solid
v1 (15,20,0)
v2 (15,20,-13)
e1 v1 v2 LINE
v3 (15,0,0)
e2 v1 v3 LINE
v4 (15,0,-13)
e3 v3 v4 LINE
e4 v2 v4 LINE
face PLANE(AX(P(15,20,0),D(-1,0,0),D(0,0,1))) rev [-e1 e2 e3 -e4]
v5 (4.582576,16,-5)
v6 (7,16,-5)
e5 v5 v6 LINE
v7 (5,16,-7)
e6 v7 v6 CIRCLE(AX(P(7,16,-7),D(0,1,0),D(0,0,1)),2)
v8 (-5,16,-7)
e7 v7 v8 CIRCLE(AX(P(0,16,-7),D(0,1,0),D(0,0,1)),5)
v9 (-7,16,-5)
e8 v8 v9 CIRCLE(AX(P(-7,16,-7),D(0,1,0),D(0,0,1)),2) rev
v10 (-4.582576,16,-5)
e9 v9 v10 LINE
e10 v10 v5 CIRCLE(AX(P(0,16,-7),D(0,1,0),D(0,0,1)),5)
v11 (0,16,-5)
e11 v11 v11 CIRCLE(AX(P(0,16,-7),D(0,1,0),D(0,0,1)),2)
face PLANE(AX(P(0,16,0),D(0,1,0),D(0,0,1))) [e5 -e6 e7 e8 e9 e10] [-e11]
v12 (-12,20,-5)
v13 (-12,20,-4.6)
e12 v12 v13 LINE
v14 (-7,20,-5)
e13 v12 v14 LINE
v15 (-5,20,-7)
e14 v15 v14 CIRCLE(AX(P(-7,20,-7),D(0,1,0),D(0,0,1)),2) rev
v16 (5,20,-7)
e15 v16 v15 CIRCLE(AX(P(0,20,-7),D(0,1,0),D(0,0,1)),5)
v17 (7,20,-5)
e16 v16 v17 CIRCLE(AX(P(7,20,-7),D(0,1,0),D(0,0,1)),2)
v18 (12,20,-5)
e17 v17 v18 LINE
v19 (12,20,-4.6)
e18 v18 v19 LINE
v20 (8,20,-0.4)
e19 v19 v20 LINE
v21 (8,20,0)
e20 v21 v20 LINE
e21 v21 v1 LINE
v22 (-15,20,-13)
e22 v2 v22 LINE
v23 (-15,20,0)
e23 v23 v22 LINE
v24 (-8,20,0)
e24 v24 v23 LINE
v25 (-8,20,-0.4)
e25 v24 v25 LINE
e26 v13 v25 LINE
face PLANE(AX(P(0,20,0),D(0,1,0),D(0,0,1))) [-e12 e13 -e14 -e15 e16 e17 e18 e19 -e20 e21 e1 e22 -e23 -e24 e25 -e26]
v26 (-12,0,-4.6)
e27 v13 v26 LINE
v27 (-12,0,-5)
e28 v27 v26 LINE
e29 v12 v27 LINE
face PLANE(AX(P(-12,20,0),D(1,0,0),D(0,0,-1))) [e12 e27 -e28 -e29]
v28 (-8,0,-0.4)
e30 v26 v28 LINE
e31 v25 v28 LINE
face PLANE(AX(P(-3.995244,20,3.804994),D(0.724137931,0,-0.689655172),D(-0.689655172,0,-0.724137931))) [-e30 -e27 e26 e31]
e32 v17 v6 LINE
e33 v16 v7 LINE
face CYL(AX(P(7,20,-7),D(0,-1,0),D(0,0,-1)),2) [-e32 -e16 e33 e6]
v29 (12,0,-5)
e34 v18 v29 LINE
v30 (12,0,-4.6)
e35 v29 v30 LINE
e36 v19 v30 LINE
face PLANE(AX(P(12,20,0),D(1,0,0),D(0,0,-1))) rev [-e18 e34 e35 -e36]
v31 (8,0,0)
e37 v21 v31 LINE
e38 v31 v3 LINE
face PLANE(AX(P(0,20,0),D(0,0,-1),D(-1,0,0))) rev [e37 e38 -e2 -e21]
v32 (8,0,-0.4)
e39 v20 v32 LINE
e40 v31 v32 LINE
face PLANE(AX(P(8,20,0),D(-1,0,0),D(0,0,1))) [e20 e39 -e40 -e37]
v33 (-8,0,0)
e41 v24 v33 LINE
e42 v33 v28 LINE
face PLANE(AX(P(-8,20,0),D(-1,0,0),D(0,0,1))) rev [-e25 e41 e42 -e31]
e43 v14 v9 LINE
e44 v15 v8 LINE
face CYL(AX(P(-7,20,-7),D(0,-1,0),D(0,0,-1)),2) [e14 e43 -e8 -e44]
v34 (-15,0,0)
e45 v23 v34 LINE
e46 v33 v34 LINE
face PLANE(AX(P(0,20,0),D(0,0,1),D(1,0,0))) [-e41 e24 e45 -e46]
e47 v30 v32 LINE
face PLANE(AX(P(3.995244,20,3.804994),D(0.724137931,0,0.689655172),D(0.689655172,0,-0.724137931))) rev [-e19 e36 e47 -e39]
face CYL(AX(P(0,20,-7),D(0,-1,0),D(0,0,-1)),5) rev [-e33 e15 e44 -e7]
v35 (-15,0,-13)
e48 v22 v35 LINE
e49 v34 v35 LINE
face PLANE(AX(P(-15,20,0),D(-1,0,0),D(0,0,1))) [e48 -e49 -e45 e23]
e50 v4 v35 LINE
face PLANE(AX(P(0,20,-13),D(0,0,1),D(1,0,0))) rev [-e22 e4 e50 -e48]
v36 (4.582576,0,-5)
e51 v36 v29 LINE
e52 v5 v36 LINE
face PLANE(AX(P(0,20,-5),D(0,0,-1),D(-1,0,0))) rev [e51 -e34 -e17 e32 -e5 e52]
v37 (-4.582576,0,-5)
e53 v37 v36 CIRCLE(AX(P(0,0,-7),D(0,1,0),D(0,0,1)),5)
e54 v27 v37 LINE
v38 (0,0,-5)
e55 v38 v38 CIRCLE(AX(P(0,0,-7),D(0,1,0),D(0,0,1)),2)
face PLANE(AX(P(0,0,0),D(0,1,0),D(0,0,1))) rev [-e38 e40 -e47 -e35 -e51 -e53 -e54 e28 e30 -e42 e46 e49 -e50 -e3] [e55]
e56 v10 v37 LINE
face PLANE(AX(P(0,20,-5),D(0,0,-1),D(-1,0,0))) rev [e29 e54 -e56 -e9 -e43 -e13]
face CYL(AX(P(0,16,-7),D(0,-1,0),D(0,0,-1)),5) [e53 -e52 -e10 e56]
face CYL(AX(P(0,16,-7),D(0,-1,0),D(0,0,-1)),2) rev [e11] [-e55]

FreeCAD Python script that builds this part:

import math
import FreeCAD as App
import Part
import Sketcher

V = App.Vector

doc = App.newDocument("Part")
body = doc.addObject("PartDesign::Body", "Body")

# Sketch on XZ plane
sketch1 = body.newObject("Sketcher::SketchObject", "Sketch")
sketch1.AttachmentSupport = (doc.getObject("XZ_Plane"), [""])
sketch1.MapMode = "FlatFace"
sketch1.addGeometry([
    Part.LineSegment(V(-15, 0, 0), V(-8, 0, 0)),  # 0
    Part.LineSegment(V(-8, 0, 0), V(-8, -0.4, 0)),  # 1
    Part.LineSegment(V(-8, -0.4, 0), V(-12, -4.6, 0)),  # 2
    Part.LineSegment(V(-12, -4.6, 0), V(-12, -5, 0)),  # 3
    Part.LineSegment(V(-12, -5, 0), V(-7, -5, 0)),  # 4
    Part.ArcOfCircle(Part.Circle(V(-7, -7, 0), V(0, 0, 1), 2), math.radians(0), math.radians(90)),  # 5
    Part.ArcOfCircle(Part.Circle(V(0, -7, 0), V(0, 0, 1), 5), math.radians(180), math.radians(360)),  # 6
    Part.ArcOfCircle(Part.Circle(V(7, -7, 0), V(0, 0, 1), 2), math.radians(90), math.radians(180)),  # 7
    Part.LineSegment(V(7, -5, 0), V(12, -5, 0)),  # 8
    Part.LineSegment(V(12, -5, 0), V(12, -4.6, 0)),  # 9
    Part.LineSegment(V(12, -4.6, 0), V(8, -0.4, 0)),  # 10
    Part.LineSegment(V(8, -0.4, 0), V(8, 0, 0)),  # 11
    Part.LineSegment(V(8, 0, 0), V(15, 0, 0)),  # 12
    Part.LineSegment(V(15, 0, 0), V(15, -13, 0)),  # 13
    Part.LineSegment(V(15, -13, 0), V(-15, -13, 0)),  # 14
    Part.LineSegment(V(-15, -13, 0), V(-15, 0, 0)),  # 15
], False)
sketch1.addConstraint([
    Sketcher.Constraint("Coincident", 0, 2, 1, 1),
    Sketcher.Constraint("Coincident", 1, 2, 2, 1),
    Sketcher.Constraint("Coincident", 2, 2, 3, 1),
    Sketcher.Constraint("Coincident", 3, 2, 4, 1),
    Sketcher.Constraint("Tangent", 4, 2, 5, 2),
    Sketcher.Constraint("Tangent", 5, 1, 6, 1),
    Sketcher.Constraint("Tangent", 6, 2, 7, 2),
    Sketcher.Constraint("Tangent", 7, 1, 8, 1),
    Sketcher.Constraint("Coincident", 8, 2, 9, 1),
    Sketcher.Constraint("Coincident", 9, 2, 10, 1),
    Sketcher.Constraint("Coincident", 10, 2, 11, 1),
    Sketcher.Constraint("Coincident", 11, 2, 12, 1),
    Sketcher.Constraint("Coincident", 12, 2, 13, 1),
    Sketcher.Constraint("Coincident", 13, 2, 14, 1),
    Sketcher.Constraint("Coincident", 14, 2, 15, 1),
    Sketcher.Constraint("Coincident", 15, 2, 0, 1),
    Sketcher.Constraint("Horizontal", 0),
    Sketcher.Constraint("Vertical", 1),
    Sketcher.Constraint("Vertical", 3),
    Sketcher.Constraint("Horizontal", 4),
    Sketcher.Constraint("Horizontal", 8),
    Sketcher.Constraint("Vertical", 9),
    Sketcher.Constraint("Vertical", 11),
    Sketcher.Constraint("Horizontal", 12),
    Sketcher.Constraint("Vertical", 13),
    Sketcher.Constraint("Horizontal", 14),
    Sketcher.Constraint("Vertical", 15),
    Sketcher.Constraint("Equal", 5, 7),
    Sketcher.Constraint("Symmetric", 0, 2, 11, 2, -1, 1),
    Sketcher.Constraint("Symmetric", 5, 3, 7, 3, -2),
    Sketcher.Constraint("Symmetric", 2, 2, 9, 2, -2),
    Sketcher.Constraint("Symmetric", 12, 2, 15, 2, -2),
    Sketcher.Constraint("Horizontal", 5, 3, 6, 3),
    Sketcher.Constraint("Horizontal", 1, 2, 10, 2),
    Sketcher.Constraint("Equal", 1, 3),
    Sketcher.Constraint("Radius", 5, 2.0),
    Sketcher.Constraint("Radius", 6, 5.0),
    Sketcher.Constraint("DistanceX", 0, 1, 0, 2, 7.0),
    Sketcher.Constraint("DistanceX", 4, 1, 4, 2, 5.0),
    Sketcher.Constraint("DistanceX", 14, 2, 14, 1, 30.0),
    Sketcher.Constraint("DistanceY", 13, 2, 13, 1, 13.0),
    Sketcher.Constraint("DistanceY", 1, 2, 1, 1, 0.4),
    Sketcher.Constraint("DistanceY", 5, 3, -1, 1, 7.0),
])
pad1 = body.newObject("PartDesign::Pad", "Pad")
pad1.Profile = sketch1
pad1.Length = 20
pad1.Reversed = True

# Sketch on XZ plane
sketch2 = body.newObject("Sketcher::SketchObject", "Sketch001")
sketch2.AttachmentSupport = (doc.getObject("XZ_Plane"), [""])
sketch2.MapMode = "FlatFace"
sketch2.addGeometry([
    Part.ArcOfCircle(Part.Circle(V(0, -7, 0), V(0, 0, 1), 5), math.radians(90), math.radians(156)),  # 0
    Part.ArcOfCircle(Part.Circle(V(0, -7, 0), V(0, 0, 1), 5), math.radians(24), math.radians(90)),  # 1
    Part.LineSegment(V(4.6, -5, 0), V(7, -5, 0)),  # 2
    Part.ArcOfCircle(Part.Circle(V(7, -7, 0), V(0, 0, 1), 2), math.radians(90), math.radians(180)),  # 3
    Part.ArcOfCircle(Part.Circle(V(0, -7, 0), V(0, 0, 1), 5), math.radians(180), math.radians(360)),  # 4
    Part.ArcOfCircle(Part.Circle(V(-7, -7, 0), V(0, 0, 1), 2), math.radians(0), math.radians(90)),  # 5
    Part.LineSegment(V(-7, -5, 0), V(-4.6, -5, 0)),  # 6
    Part.ArcOfCircle(Part.Circle(V(0, -7, 0), V(0, 0, 1), 2), math.radians(0), math.radians(90)),  # 7
    Part.ArcOfCircle(Part.Circle(V(0, -7, 0), V(0, 0, 1), 2), math.radians(90), math.radians(360)),  # 8
], False)
sketch2.addConstraint([
    Sketcher.Constraint("Tangent", 0, 1, 1, 2),
    Sketcher.Constraint("Coincident", 1, 1, 2, 1),
    Sketcher.Constraint("Tangent", 2, 2, 3, 1),
    Sketcher.Constraint("Tangent", 3, 2, 4, 2),
    Sketcher.Constraint("Tangent", 4, 1, 5, 1),
    Sketcher.Constraint("Tangent", 5, 2, 6, 1),
    Sketcher.Constraint("Coincident", 6, 2, 0, 2),
    Sketcher.Constraint("Tangent", 7, 1, 8, 2),
    Sketcher.Constraint("Coincident", 8, 1, 7, 2),
    Sketcher.Constraint("Horizontal", 2),
    Sketcher.Constraint("Horizontal", 6),
    Sketcher.Constraint("Coincident", 4, 3, 0, 3),
    Sketcher.Constraint("Coincident", 7, 3, 0, 3),
    Sketcher.Constraint("Equal", 0, 1),
    Sketcher.Constraint("Equal", 1, 4),
    Sketcher.Constraint("Equal", 3, 5),
    Sketcher.Constraint("Equal", 5, 7),
    Sketcher.Constraint("Symmetric", 3, 3, 5, 3, -2),
    Sketcher.Constraint("PointOnObject", 0, 1, -2),
    Sketcher.Constraint("PointOnObject", 8, 1, -2),
    Sketcher.Constraint("Horizontal", 1, 3, 3, 3),
    Sketcher.Constraint("Horizontal", 4, 1, 7, 1),
    Sketcher.Constraint("Radius", 0, 5.0),
    Sketcher.Constraint("Radius", 3, 2.0),
    Sketcher.Constraint("DistanceY", 0, 3, -1, 1, 7.0),
])
pad2 = body.newObject("PartDesign::Pad", "Pad001")
pad2.Profile = sketch2
pad2.Length = 16
pad2.Reversed = True

doc.recompute()
